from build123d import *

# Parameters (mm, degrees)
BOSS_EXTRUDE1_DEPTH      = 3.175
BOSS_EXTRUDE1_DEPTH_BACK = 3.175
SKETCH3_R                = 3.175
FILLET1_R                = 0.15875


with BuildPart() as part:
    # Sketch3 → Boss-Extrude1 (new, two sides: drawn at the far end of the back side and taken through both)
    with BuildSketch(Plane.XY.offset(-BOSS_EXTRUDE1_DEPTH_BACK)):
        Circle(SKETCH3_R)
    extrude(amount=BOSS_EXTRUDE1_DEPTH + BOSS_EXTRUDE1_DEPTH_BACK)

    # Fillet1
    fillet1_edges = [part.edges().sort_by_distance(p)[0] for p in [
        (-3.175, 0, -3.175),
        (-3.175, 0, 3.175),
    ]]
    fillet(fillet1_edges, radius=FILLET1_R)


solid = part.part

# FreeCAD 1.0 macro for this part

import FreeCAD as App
import Part
import Sketcher
Q = App.Units.Quantity


def edges_at(feature, points):
    """Names of the edges that pass closest to the given points."""
    edges = feature.Shape.Edges
    near = lambda p: min(range(len(edges)), key=lambda i: edges[i].distToShape(Part.Vertex(*p))[0])
    return sorted({f"Edge{near(p) + 1}" for p in points})

doc = App.newDocument("Part")
params = doc.addObject("Spreadsheet::Sheet", "Params")
for row, (alias, value) in enumerate([
    ("sketch1_diameter", "0.25 in"),
    ("pad1_length", "0.125 in"),
    ("pad1_length2", "0.125 in"),
    ("fillet_radius", "0.15875 mm"),
], start=1):
    params.set(f"A{row}", alias)
    params.set(f"B{row}", "=" + value)
    params.setAlias(f"B{row}", alias)

body = doc.addObject("PartDesign::Body", "Body")

sketch1 = doc.addObject("Sketcher::SketchObject", "Sketch")
body.addObject(sketch1)
sketch1.AttachmentSupport = (doc.XY_Plane, [""])
sketch1.MapMode = "FlatFace"
sketch1.addGeometry(Part.Circle(App.Vector(0, 0, 0), App.Vector(0, 0, 1), 3.2), False)
sketch1.addConstraint(Sketcher.Constraint("Coincident", 0, 3, -1, 1))
sketch1.addConstraint(Sketcher.Constraint("Diameter", 0, Q("0.25 in")))
sketch1.setExpression("Constraints[1]", "Params.sketch1_diameter")
pad1 = doc.addObject("PartDesign::Pad", "Pad")
body.addObject(pad1)
pad1.Profile = sketch1
pad1.Type = "TwoLengths"
pad1.setExpression("Length", "Params.pad1_length")
pad1.setExpression("Length2", "Params.pad1_length2")
doc.recompute()

fillet = doc.addObject("PartDesign::Fillet", "Fillet")
body.addObject(fillet)
fillet.Base = (pad1, edges_at(pad1, [(-3.175, 0, -3.175), (-3.175, 0, 3.175)]))
fillet.setExpression("Radius", "Params.fillet_radius")

doc.recompute()
